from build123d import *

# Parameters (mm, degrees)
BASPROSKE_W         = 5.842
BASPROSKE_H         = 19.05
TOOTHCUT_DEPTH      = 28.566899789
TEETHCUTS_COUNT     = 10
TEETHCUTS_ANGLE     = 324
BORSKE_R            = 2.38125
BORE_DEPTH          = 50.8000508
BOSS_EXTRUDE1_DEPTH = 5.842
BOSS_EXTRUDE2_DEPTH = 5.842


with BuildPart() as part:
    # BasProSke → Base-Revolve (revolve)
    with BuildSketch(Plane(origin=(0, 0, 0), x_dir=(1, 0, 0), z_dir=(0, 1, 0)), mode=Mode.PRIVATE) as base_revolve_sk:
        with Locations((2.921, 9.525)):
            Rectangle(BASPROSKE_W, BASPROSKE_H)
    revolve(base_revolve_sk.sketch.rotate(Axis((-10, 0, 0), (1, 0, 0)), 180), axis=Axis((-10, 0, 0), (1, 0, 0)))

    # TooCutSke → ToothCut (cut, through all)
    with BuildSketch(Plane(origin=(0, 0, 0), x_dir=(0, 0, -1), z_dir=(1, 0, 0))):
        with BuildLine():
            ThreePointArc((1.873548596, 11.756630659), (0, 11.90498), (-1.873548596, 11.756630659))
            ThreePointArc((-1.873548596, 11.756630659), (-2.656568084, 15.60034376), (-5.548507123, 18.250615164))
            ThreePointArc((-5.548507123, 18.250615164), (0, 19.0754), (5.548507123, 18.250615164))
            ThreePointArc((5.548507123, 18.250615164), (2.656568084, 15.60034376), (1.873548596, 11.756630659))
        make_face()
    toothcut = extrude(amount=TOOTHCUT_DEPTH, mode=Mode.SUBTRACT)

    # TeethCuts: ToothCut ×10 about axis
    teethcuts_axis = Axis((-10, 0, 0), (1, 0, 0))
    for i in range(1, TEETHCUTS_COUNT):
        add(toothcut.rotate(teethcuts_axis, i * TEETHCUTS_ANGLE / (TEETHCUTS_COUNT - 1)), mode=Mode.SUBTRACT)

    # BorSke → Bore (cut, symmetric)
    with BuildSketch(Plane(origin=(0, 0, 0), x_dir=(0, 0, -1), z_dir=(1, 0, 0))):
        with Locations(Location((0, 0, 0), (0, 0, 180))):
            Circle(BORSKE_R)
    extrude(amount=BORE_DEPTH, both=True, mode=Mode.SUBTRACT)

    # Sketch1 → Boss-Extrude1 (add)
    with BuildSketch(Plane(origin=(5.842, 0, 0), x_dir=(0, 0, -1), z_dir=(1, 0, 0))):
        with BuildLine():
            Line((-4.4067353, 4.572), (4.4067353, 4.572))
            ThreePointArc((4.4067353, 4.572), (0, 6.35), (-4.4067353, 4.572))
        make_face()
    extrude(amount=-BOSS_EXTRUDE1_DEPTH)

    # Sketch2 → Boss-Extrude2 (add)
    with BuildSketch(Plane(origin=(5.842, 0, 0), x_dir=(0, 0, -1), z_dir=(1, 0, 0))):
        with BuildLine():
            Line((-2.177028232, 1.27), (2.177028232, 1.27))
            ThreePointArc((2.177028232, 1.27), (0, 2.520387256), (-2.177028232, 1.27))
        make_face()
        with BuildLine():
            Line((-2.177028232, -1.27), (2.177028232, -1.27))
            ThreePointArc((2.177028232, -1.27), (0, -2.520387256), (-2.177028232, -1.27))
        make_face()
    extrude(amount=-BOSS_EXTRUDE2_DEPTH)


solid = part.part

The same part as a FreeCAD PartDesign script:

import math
import FreeCAD as App
import Part
import Sketcher

V = App.Vector
Q = App.Units.Quantity


def add_polygon(sketch, points):
    """Adds a closed chain of lines whose ends are joined by coincident constraints."""
    first, n = sketch.GeometryCount, len(points)
    for a, b in zip(points, points[1:] + points[:1]):
        sketch.addGeometry(Part.LineSegment(App.Vector(*a, 0), App.Vector(*b, 0)), False)
    for i in range(n):
        sketch.addConstraint(Sketcher.Constraint("Coincident", first + i, 2, first + (i + 1) % n, 1))

doc = App.newDocument("Part")
body = doc.addObject("PartDesign::Body", "Body")

sketch1 = body.newObject("Sketcher::SketchObject", "Sketch")
sketch1.AttachmentSupport = (doc.getObject("XZ_Plane"), [""])
sketch1.MapMode = "FlatFace"
add_polygon(sketch1, [(0, -19.05), (0, 0), (5.842, 0), (5.842, -19.05)])
sketch1.addConstraint(Sketcher.Constraint("Vertical", 0))
sketch1.addConstraint(Sketcher.Constraint("Horizontal", 1))
sketch1.addConstraint(Sketcher.Constraint("Vertical", 2))
sketch1.addConstraint(Sketcher.Constraint("Horizontal", 3))
sketch1.addConstraint(Sketcher.Constraint("Coincident", 0, 2, -1, 1))
sketch1.addConstraint(Sketcher.Constraint("DistanceX", 1, 1, 1, 2, Q("0.23 in")))
sketch1.addConstraint(Sketcher.Constraint("DistanceY", 0, 1, 0, 2, Q("0.75 in")))
revolution = body.newObject("PartDesign::Revolution", "Revolution")
revolution.Profile = sketch1
revolution.ReferenceAxis = (sketch1, ["H_Axis"])
revolution.Angle = 360

sketch2 = body.newObject("Sketcher::SketchObject", "Sketch001")
sketch2.AttachmentSupport = (doc.getObject("YZ_Plane"), [""])
sketch2.MapMode = "FlatFace"
sketch2.addGeometry(Part.ArcOfCircle(Part.Circle(V(0, 0, 0), V(0, 0, 1), 11.90498), math.radians(-9.054576), math.radians(9.054576)), False)
sketch2.addGeometry(Part.ArcOfCircle(Part.Circle(V(12.472913, -8.183021, 0), V(0, 0, 1), 6.35), math.radians(24.512014), math.radians(96.476773)), False)
sketch2.addGeometry(Part.ArcOfCircle(Part.Circle(V(0, 0, 0), V(0, 0, 1), 19.0754), math.radians(-16.910192), math.radians(16.910192)), False)
sketch2.addGeometry(Part.ArcOfCircle(Part.Circle(V(12.472913, 8.183021, 0), V(0, 0, 1), 6.35), math.radians(-96.476773), math.radians(-24.512014)), False)
sketch2.addConstraint(Sketcher.Constraint("Coincident", 0, 1, 1, 2))
sketch2.addConstraint(Sketcher.Constraint("Coincident", 1, 1, 2, 1))
sketch2.addConstraint(Sketcher.Constraint("Coincident", 2, 2, 3, 2))
sketch2.addConstraint(Sketcher.Constraint("Coincident", 3, 1, 0, 2))
sketch2.addConstraint(Sketcher.Constraint("Coincident", 0, 3, -1, 1))
sketch2.addConstraint(Sketcher.Constraint("Coincident", 2, 3, -1, 1))
sketch2.addConstraint(Sketcher.Constraint("Equal", 1, 3))
sketch2.addConstraint(Sketcher.Constraint("Symmetric", 1, 3, 3, 3, -1))
sketch2.addConstraint(Sketcher.Constraint("Radius", 1, Q("0.25 in")))
sketch2.addConstraint(Sketcher.Constraint("Radius", 2, Q("0.751 in")))
sketch2.addConstraint(Sketcher.Constraint("Radius", 0, Q("0.4687 in")))
sketch2.addConstraint(Sketcher.Constraint("DistanceX", 0, 1, 1, 3, Q("0.0282001 in")))
sketch2.addConstraint(Sketcher.Constraint("DistanceX", 1, 3, 1, 1, Q("5.777702 mm")))
pocket1 = body.newObject("PartDesign::Pocket", "Pocket")
pocket1.Profile = sketch2
pocket1.Type = "ThroughAll"
pocket1.Reversed = True
doc.recompute()

polarpattern = body.newObject("PartDesign::PolarPattern", "PolarPattern")
polarpattern.Originals = [pocket1]
polarpattern.Axis = (doc.getObject("X_Axis"), [""])
polarpattern.Angle = 360
polarpattern.Occurrences = 10
body.Tip = polarpattern

sketch3 = body.newObject("Sketcher::SketchObject", "Sketch002")
sketch3.AttachmentSupport = (doc.getObject("YZ_Plane"), [""])
sketch3.MapMode = "FlatFace"
sketch3.addGeometry(Part.Circle(V(0, 0, 0), V(0, 0, 1), 2.38125), False)
sketch3.addConstraint(Sketcher.Constraint("Coincident", 0, 3, -1, 1))
sketch3.addConstraint(Sketcher.Constraint("Diameter", 0, Q("0.1875 in")))
pocket2 = body.newObject("PartDesign::Pocket", "Pocket001")
pocket2.Profile = sketch3
pocket2.Length = 101.600102
pocket2.Midplane = True

sketch4 = body.newObject("Sketcher::SketchObject", "Sketch003")
sketch4.AttachmentSupport = (doc.getObject("YZ_Plane"), [""])
sketch4.MapMode = "FlatFace"
sketch4.AttachmentOffset = App.Placement(V(0, 0, 0.23 * 25.4), App.Rotation())
sketch4.addGeometry(Part.LineSegment(V(4.572, 4.406735, 0), V(4.572, -4.406735, 0)), False)
sketch4.addGeometry(Part.ArcOfCircle(Part.Circle(V(0, 0, 0), V(0, 0, 1), 6.35), math.radians(-43.94552), math.radians(43.94552)), False)
sketch4.addConstraint(Sketcher.Constraint("Coincident", 0, 1, 1, 2))
sketch4.addConstraint(Sketcher.Constraint("Coincident", 1, 1, 0, 2))
sketch4.addConstraint(Sketcher.Constraint("Vertical", 0))
sketch4.addConstraint(Sketcher.Constraint("Coincident", 1, 3, -1, 1))
sketch4.addConstraint(Sketcher.Constraint("Radius", 1, Q("0.25 in")))
sketch4.addConstraint(Sketcher.Constraint("DistanceX", -1, 1, 0, 1, Q("0.18 in")))
pad1 = body.newObject("PartDesign::Pad", "Pad")
pad1.Profile = sketch4
pad1.Length = Q("0.23 in")
pad1.Reversed = True

sketch5 = body.newObject("Sketcher::SketchObject", "Sketch004")
sketch5.AttachmentSupport = (doc.getObject("YZ_Plane"), [""])
sketch5.MapMode = "FlatFace"
sketch5.AttachmentOffset = App.Placement(V(0, 0, 0.23 * 25.4), App.Rotation())
sketch5.addGeometry(Part.LineSegment(V(1.27, 2.177028, 0), V(1.27, -2.177028, 0)), False)
sketch5.addGeometry(Part.ArcOfCircle(Part.Circle(V(0, 0, 0), V(0, 0, 1), 2.520387), math.radians(-59.74225), math.radians(59.74225)), False)
sketch5.addGeometry(Part.LineSegment(V(-1.27, -2.177028, 0), V(-1.27, 2.177028, 0)), False)
sketch5.addGeometry(Part.ArcOfCircle(Part.Circle(V(0, 0, 0), V(0, 0, 1), 2.520387), math.radians(120.25775), math.radians(239.74225)), False)
sketch5.addConstraint(Sketcher.Constraint("Coincident", 0, 1, 1, 2))
sketch5.addConstraint(Sketcher.Constraint("Coincident", 1, 1, 0, 2))
sketch5.addConstraint(Sketcher.Constraint("Coincident", 2, 1, 3, 2))
sketch5.addConstraint(Sketcher.Constraint("Coincident", 3, 1, 2, 2))
sketch5.addConstraint(Sketcher.Constraint("Vertical", 0))
sketch5.addConstraint(Sketcher.Constraint("Vertical", 2))
sketch5.addConstraint(Sketcher.Constraint("Coincident", 1, 3, -1, 1))
sketch5.addConstraint(Sketcher.Constraint("Coincident", 3, 3, -1, 1))
sketch5.addConstraint(Sketcher.Constraint("Equal", 1, 3))
sketch5.addConstraint(Sketcher.Constraint("Horizontal", 1, 1, 2, 1))
sketch5.addConstraint(Sketcher.Constraint("DistanceX", 2, 1, 1, 1, Q("0.1 in")))
sketch5.addConstraint(Sketcher.Constraint("Radius", 1, Q("2.520387 mm")))
pad2 = body.newObject("PartDesign::Pad", "Pad001")
pad2.Profile = sketch5
pad2.Length = Q("0.23 in")
pad2.Reversed = True

doc.recompute()
